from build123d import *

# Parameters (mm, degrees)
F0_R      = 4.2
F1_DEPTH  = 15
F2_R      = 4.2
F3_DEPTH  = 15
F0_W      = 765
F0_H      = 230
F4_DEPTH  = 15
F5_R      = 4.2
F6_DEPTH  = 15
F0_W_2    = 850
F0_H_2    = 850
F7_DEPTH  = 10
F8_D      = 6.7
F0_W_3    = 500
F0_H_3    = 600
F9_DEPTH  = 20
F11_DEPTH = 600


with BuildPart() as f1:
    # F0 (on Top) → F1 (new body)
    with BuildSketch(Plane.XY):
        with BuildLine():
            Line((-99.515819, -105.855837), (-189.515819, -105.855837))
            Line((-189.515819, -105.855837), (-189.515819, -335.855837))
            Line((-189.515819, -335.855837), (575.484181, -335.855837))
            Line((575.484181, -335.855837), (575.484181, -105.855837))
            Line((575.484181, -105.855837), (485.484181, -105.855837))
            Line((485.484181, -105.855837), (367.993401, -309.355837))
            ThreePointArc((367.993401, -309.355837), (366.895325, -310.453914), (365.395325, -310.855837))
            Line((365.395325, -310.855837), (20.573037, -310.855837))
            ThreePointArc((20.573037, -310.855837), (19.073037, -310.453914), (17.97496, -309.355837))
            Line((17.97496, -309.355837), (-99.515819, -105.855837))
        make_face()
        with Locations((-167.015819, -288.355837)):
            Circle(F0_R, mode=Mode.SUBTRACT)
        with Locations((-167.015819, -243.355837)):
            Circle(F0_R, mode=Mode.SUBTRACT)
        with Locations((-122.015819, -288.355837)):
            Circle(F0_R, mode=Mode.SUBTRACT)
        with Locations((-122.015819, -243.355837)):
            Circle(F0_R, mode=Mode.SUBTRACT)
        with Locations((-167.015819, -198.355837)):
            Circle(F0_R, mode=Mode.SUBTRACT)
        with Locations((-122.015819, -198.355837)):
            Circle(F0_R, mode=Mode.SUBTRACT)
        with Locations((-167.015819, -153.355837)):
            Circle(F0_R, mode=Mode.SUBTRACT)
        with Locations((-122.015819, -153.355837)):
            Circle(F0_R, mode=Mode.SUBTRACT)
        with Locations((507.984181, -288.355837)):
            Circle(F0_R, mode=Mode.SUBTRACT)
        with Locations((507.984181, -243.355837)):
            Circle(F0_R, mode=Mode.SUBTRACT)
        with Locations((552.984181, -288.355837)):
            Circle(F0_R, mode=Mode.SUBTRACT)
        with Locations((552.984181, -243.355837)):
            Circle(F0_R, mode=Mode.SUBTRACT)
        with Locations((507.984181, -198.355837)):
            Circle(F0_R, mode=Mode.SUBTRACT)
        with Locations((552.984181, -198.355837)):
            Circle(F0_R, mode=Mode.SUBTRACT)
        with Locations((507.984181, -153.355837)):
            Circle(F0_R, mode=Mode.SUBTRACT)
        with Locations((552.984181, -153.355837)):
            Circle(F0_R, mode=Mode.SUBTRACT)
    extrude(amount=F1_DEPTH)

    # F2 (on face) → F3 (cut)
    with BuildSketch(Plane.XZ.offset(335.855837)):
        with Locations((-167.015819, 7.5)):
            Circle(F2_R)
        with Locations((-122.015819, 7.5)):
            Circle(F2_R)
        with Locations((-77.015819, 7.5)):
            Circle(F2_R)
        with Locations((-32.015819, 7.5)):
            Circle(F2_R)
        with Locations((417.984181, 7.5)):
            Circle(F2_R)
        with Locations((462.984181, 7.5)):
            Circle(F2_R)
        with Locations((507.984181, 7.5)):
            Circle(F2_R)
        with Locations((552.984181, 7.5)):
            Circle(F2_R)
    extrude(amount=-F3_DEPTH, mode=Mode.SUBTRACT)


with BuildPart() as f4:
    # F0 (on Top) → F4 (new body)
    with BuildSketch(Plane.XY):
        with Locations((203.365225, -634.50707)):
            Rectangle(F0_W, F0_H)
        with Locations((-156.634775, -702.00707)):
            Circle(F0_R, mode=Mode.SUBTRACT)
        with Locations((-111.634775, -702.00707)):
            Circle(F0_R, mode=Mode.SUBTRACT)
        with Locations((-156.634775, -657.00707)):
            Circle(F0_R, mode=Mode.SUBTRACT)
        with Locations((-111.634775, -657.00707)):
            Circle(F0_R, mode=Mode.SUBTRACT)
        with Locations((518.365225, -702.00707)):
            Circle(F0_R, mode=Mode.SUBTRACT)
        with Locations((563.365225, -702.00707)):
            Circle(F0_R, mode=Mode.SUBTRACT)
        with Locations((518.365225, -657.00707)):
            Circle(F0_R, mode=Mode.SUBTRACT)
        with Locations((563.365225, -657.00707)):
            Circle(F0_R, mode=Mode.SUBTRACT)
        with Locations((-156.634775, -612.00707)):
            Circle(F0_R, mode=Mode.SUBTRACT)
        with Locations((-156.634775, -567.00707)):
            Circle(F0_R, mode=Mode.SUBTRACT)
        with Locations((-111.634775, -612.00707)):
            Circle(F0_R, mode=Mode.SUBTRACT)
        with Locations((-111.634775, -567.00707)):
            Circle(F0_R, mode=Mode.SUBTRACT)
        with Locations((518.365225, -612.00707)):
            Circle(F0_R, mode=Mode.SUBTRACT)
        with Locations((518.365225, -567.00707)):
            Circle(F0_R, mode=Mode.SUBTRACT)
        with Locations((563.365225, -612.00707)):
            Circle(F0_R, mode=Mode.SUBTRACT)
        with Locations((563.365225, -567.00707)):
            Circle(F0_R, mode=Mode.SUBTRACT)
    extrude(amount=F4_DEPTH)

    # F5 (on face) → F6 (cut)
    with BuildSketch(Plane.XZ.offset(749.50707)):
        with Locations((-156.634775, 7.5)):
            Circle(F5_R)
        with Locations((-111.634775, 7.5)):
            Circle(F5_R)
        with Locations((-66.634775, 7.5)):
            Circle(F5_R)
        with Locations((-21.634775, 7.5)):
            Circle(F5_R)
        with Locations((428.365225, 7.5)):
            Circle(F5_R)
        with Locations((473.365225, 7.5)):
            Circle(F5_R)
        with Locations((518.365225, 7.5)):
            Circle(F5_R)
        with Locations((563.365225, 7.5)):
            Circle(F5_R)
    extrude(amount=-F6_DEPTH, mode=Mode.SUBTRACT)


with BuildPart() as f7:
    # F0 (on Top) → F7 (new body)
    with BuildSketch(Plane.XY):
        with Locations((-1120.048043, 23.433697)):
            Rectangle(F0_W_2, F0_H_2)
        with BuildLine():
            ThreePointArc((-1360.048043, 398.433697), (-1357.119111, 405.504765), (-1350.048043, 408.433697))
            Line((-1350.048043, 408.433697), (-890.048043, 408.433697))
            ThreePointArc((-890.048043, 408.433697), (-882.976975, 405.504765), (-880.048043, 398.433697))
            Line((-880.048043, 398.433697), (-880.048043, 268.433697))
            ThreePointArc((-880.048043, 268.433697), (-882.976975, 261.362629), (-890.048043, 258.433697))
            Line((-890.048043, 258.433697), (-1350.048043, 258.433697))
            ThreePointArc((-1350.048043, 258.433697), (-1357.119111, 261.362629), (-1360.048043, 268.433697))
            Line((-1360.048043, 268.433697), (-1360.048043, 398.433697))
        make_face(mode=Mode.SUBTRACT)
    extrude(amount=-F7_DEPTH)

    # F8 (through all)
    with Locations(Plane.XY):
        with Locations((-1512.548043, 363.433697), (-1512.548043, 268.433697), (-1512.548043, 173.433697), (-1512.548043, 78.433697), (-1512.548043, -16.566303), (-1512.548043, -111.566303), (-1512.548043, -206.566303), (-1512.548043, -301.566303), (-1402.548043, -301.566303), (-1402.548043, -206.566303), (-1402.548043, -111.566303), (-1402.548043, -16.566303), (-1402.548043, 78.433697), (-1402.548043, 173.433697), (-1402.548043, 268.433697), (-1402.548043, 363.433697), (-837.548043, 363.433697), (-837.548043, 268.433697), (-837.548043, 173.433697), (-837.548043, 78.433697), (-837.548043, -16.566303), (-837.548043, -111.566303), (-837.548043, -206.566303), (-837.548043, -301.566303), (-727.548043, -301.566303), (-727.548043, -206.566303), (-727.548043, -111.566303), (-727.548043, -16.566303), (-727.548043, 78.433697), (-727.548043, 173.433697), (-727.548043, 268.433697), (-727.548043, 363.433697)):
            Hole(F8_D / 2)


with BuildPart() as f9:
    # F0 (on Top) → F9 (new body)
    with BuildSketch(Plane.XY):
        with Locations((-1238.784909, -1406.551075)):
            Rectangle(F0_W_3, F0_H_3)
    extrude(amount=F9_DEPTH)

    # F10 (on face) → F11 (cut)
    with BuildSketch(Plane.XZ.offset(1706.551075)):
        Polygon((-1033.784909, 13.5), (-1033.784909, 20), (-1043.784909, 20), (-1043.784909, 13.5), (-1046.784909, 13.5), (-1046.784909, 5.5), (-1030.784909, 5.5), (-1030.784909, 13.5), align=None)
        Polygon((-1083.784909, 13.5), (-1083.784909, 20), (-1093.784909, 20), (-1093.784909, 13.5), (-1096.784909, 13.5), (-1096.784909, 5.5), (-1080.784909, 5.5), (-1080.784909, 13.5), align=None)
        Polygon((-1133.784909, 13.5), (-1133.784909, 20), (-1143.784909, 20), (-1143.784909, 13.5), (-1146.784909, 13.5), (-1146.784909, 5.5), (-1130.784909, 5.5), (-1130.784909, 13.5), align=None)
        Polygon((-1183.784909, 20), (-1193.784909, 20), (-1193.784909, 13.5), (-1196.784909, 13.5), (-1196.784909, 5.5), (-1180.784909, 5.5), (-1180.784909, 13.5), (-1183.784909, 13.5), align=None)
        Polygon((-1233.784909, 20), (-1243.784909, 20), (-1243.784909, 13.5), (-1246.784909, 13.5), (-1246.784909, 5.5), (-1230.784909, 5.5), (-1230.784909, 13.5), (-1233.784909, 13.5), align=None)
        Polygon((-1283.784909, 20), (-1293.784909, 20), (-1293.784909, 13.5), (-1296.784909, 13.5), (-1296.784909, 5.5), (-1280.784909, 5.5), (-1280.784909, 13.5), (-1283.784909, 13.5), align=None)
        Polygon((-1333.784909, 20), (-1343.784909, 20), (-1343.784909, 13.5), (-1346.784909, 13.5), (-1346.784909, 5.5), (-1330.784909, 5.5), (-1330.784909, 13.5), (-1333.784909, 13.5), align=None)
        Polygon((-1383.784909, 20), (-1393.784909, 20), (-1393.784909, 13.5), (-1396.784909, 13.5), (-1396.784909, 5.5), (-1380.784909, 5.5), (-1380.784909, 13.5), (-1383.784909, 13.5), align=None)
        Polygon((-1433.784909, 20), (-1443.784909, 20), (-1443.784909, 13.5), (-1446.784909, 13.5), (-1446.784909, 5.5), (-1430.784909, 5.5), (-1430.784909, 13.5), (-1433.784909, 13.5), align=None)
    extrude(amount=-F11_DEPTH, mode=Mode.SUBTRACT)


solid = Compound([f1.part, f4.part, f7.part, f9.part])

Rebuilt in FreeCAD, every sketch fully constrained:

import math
import FreeCAD as App
import Part
import Sketcher

V = App.Vector
Q = App.Units.Quantity

doc = App.newDocument("Part")
body = doc.addObject("PartDesign::Body", "Body")

# Sketch on XY plane
sketch1 = doc.addObject("Sketcher::SketchObject", "Sketch")
body.addObject(sketch1)
sketch1.AttachmentSupport = (doc.XY_Plane, [""])
sketch1.MapMode = "FlatFace"
sketch1.addGeometry([
    Part.LineSegment(V(-99.5, -105.9, 0), V(-189.5, -105.9, 0)),  # 0
    Part.LineSegment(V(-189.5, -105.9, 0), V(-189.5, -335.9, 0)),  # 1
    Part.LineSegment(V(-189.5, -335.9, 0), V(575.5, -335.9, 0)),  # 2
    Part.LineSegment(V(575.5, -335.9, 0), V(575.5, -105.9, 0)),  # 3
    Part.LineSegment(V(575.5, -105.9, 0), V(485.5, -105.9, 0)),  # 4
    Part.LineSegment(V(485.5, -105.9, 0), V(368, -309.4, 0)),  # 5
    Part.ArcOfCircle(Part.Circle(V(365.4, -307.9, 0), V(0, 0, 1), 3), math.radians(-90), math.radians(-30)),  # 6
    Part.LineSegment(V(365.4, -310.9, 0), V(20.6, -310.9, 0)),  # 7
    Part.ArcOfCircle(Part.Circle(V(20.6, -307.9, 0), V(0, 0, 1), 3), math.radians(-150), math.radians(-90)),  # 8
    Part.LineSegment(V(18, -309.4, 0), V(-99.5, -105.9, 0)),  # 9
    Part.Circle(V(-167, -288.4, 0), V(0, 0, 1), 4.2),  # 10
    Part.Circle(V(-122, -288.4, 0), V(0, 0, 1), 4.2),  # 11
    Part.Circle(V(-167, -243.4, 0), V(0, 0, 1), 4.2),  # 12
    Part.Circle(V(-122, -243.4, 0), V(0, 0, 1), 4.2),  # 13
    Part.Circle(V(508, -288.4, 0), V(0, 0, 1), 4.2),  # 14
    Part.Circle(V(553, -288.4, 0), V(0, 0, 1), 4.2),  # 15
    Part.Circle(V(508, -243.4, 0), V(0, 0, 1), 4.2),  # 16
    Part.Circle(V(553, -243.4, 0), V(0, 0, 1), 4.2),  # 17
    Part.Circle(V(-167, -198.4, 0), V(0, 0, 1), 4.2),  # 18
    Part.Circle(V(-122, -198.4, 0), V(0, 0, 1), 4.2),  # 19
    Part.Circle(V(-167, -153.4, 0), V(0, 0, 1), 4.2),  # 20
    Part.Circle(V(-122, -153.4, 0), V(0, 0, 1), 4.2),  # 21
    Part.Circle(V(508, -198.4, 0), V(0, 0, 1), 4.2),  # 22
    Part.Circle(V(553, -198.4, 0), V(0, 0, 1), 4.2),  # 23
    Part.Circle(V(508, -153.4, 0), V(0, 0, 1), 4.2),  # 24
    Part.Circle(V(553, -153.4, 0), V(0, 0, 1), 4.2),  # 25
], False)
sketch1.addConstraint([
    Sketcher.Constraint("Coincident", 0, 2, 1, 1),
    Sketcher.Constraint("Coincident", 1, 2, 2, 1),
    Sketcher.Constraint("Coincident", 2, 2, 3, 1),
    Sketcher.Constraint("Coincident", 3, 2, 4, 1),
    Sketcher.Constraint("Coincident", 4, 2, 5, 1),
    Sketcher.Constraint("Tangent", 5, 2, 6, 2),
    Sketcher.Constraint("Tangent", 6, 1, 7, 1),
    Sketcher.Constraint("Tangent", 7, 2, 8, 2),
    Sketcher.Constraint("Tangent", 8, 1, 9, 1),
    Sketcher.Constraint("Coincident", 9, 2, 0, 1),
    Sketcher.Constraint("Horizontal", 0),
    Sketcher.Constraint("Vertical", 1),
    Sketcher.Constraint("Horizontal", 2),
    Sketcher.Constraint("Vertical", 3),
    Sketcher.Constraint("Horizontal", 4),
    Sketcher.Constraint("Horizontal", 7),
    Sketcher.Constraint("Equal", 10, 11),
    Sketcher.Constraint("Equal", 11, 12),
    Sketcher.Constraint("Equal", 12, 13),
    Sketcher.Constraint("Equal", 13, 14),
    Sketcher.Constraint("Equal", 14, 15),
    Sketcher.Constraint("Equal", 15, 16),
    Sketcher.Constraint("Equal", 16, 17),
    Sketcher.Constraint("Equal", 17, 18),
    Sketcher.Constraint("Equal", 18, 19),
    Sketcher.Constraint("Equal", 19, 20),
    Sketcher.Constraint("Equal", 20, 21),
    Sketcher.Constraint("Equal", 21, 22),
    Sketcher.Constraint("Equal", 22, 23),
    Sketcher.Constraint("Equal", 23, 24),
    Sketcher.Constraint("Equal", 24, 25),
    Sketcher.Constraint("Horizontal", 10, 3, 11, 3),
    Sketcher.Constraint("Horizontal", 12, 3, 13, 3),
    Sketcher.Constraint("Horizontal", 11, 3, 14, 3),
    Sketcher.Constraint("Horizontal", 14, 3, 15, 3),
    Sketcher.Constraint("Horizontal", 13, 3, 16, 3),
    Sketcher.Constraint("Horizontal", 16, 3, 17, 3),
    Sketcher.Constraint("Horizontal", 18, 3, 19, 3),
    Sketcher.Constraint("Horizontal", 20, 3, 21, 3),
    Sketcher.Constraint("Horizontal", 19, 3, 22, 3),
    Sketcher.Constraint("Horizontal", 22, 3, 23, 3),
    Sketcher.Constraint("Horizontal", 21, 3, 24, 3),
    Sketcher.Constraint("Horizontal", 24, 3, 25, 3),
    Sketcher.Constraint("Horizontal", 0, 2, 3, 2),
    Sketcher.Constraint("Horizontal", 5, 2, 8, 1),
    Sketcher.Constraint("Vertical", 10, 3, 12, 3),
    Sketcher.Constraint("Vertical", 11, 3, 13, 3),
    Sketcher.Constraint("Vertical", 14, 3, 16, 3),
    Sketcher.Constraint("Vertical", 15, 3, 17, 3),
    Sketcher.Constraint("Vertical", 12, 3, 18, 3),
    Sketcher.Constraint("Vertical", 13, 3, 19, 3),
    Sketcher.Constraint("Vertical", 18, 3, 20, 3),
    Sketcher.Constraint("Vertical", 19, 3, 21, 3),
    Sketcher.Constraint("Vertical", 16, 3, 22, 3),
    Sketcher.Constraint("Vertical", 17, 3, 23, 3),
    Sketcher.Constraint("Vertical", 22, 3, 24, 3),
    Sketcher.Constraint("Vertical", 23, 3, 25, 3),
    Sketcher.Constraint("Equal", 0, 4),
    Sketcher.Constraint("Equal", 5, 9),
    Sketcher.Constraint("Radius", 8, 2.999998),
    Sketcher.Constraint("Diameter", 10, 8.4),
    Sketcher.Constraint("DistanceX", 0, 2, 0, 1, 90.0),
    Sketcher.Constraint("DistanceX", 2, 1, 2, 2, 765.0),
    Sketcher.Constraint("DistanceY", 1, 2, 1, 1, 230.0),
    Sketcher.Constraint("Angle", 5, Q("-120 deg")),
    Sketcher.Constraint("DistanceX", 10, 3, 11, 3, 45.0),
    Sketcher.Constraint("DistanceY", 10, 3, 12, 3, 45.0),
    Sketcher.Constraint("DistanceX", 11, 3, 14, 3, 630.0),
    Sketcher.Constraint("DistanceX", 14, 3, 15, 3, 45.0),
    Sketcher.Constraint("DistanceY", 12, 3, 18, 3, 45.0),
    Sketcher.Constraint("DistanceY", 18, 3, 20, 3, 45.0),
    Sketcher.Constraint("DistanceY", 5, 2, 14, 3, 21.0),
    Sketcher.Constraint("DistanceX", 0, 2, 20, 3, 22.5),
    Sketcher.Constraint("DistanceY", 20, 3, 0, 2, 47.5),
    Sketcher.Constraint("DistanceX", -1, 1, 5, 2, 367.993401),
    Sketcher.Constraint("DistanceY", 8, 3, -1, 1, 307.855839),
])
pad1 = doc.addObject("PartDesign::Pad", "Pad")
body.addObject(pad1)
pad1.Profile = sketch1
pad1.Length = 15

# Sketch on XZ plane
sketch2 = doc.addObject("Sketcher::SketchObject", "Sketch001")
body.addObject(sketch2)
sketch2.AttachmentSupport = (doc.XZ_Plane, [""])
sketch2.MapMode = "FlatFace"
sketch2.AttachmentOffset = App.Placement(V(0, 0, 335.855837), App.Rotation())
sketch2.addGeometry([
    Part.Circle(V(-167, 7.5, 0), V(0, 0, 1), 4.2),  # 0
    Part.Circle(V(-122, 7.5, 0), V(0, 0, 1), 4.2),  # 1
    Part.Circle(V(-77, 7.5, 0), V(0, 0, 1), 4.2),  # 2
    Part.Circle(V(-32, 7.5, 0), V(0, 0, 1), 4.2),  # 3
    Part.Circle(V(418, 7.5, 0), V(0, 0, 1), 4.2),  # 4
    Part.Circle(V(463, 7.5, 0), V(0, 0, 1), 4.2),  # 5
    Part.Circle(V(508, 7.5, 0), V(0, 0, 1), 4.2),  # 6
    Part.Circle(V(553, 7.5, 0), V(0, 0, 1), 4.2),  # 7
], False)
sketch2.addConstraint([
    Sketcher.Constraint("Equal", 0, 1),
    Sketcher.Constraint("Equal", 1, 2),
    Sketcher.Constraint("Equal", 2, 3),
    Sketcher.Constraint("Equal", 3, 4),
    Sketcher.Constraint("Equal", 4, 5),
    Sketcher.Constraint("Equal", 5, 6),
    Sketcher.Constraint("Equal", 6, 7),
    Sketcher.Constraint("Horizontal", 0, 3, 1, 3),
    Sketcher.Constraint("Horizontal", 1, 3, 2, 3),
    Sketcher.Constraint("Horizontal", 2, 3, 3, 3),
    Sketcher.Constraint("Horizontal", 3, 3, 4, 3),
    Sketcher.Constraint("Horizontal", 4, 3, 5, 3),
    Sketcher.Constraint("Horizontal", 5, 3, 6, 3),
    Sketcher.Constraint("Horizontal", 6, 3, 7, 3),
    Sketcher.Constraint("Diameter", 0, 8.4),
    Sketcher.Constraint("DistanceX", 0, 3, 1, 3, 45.0),
    Sketcher.Constraint("DistanceX", 1, 3, 2, 3, 45.0),
    Sketcher.Constraint("DistanceX", 2, 3, 3, 3, 45.0),
    Sketcher.Constraint("DistanceX", 3, 3, 4, 3, 450.0),
    Sketcher.Constraint("DistanceX", 4, 3, 5, 3, 45.0),
    Sketcher.Constraint("DistanceX", 5, 3, 6, 3, 45.0),
    Sketcher.Constraint("DistanceX", 6, 3, 7, 3, 45.0),
    Sketcher.Constraint("DistanceY", -1, 1, 0, 3, 7.5),
    Sketcher.Constraint("DistanceX", 0, 3, -1, 1, 167.015819),
])
pocket1 = doc.addObject("PartDesign::Pocket", "Pocket")
body.addObject(pocket1)
pocket1.Profile = sketch2
pocket1.Length = 15
body2 = doc.addObject("PartDesign::Body", "Body001")

# Sketch on XY plane
sketch3 = doc.addObject("Sketcher::SketchObject", "Sketch002")
body2.addObject(sketch3)
sketch3.AttachmentSupport = (doc.getObject("XY_Plane001"), [""])
sketch3.MapMode = "FlatFace"
sketch3.addGeometry([
    Part.LineSegment(V(-179.1, -519.5, 0), V(-179.1, -749.5, 0)),  # 0
    Part.LineSegment(V(-179.1, -749.5, 0), V(585.9, -749.5, 0)),  # 1
    Part.LineSegment(V(585.9, -749.5, 0), V(585.9, -519.5, 0)),  # 2
    Part.LineSegment(V(585.9, -519.5, 0), V(-179.1, -519.5, 0)),  # 3
    Part.Circle(V(-156.6, -702, 0), V(0, 0, 1), 4.2),  # 4
    Part.Circle(V(-111.6, -702, 0), V(0, 0, 1), 4.2),  # 5
    Part.Circle(V(-156.6, -657, 0), V(0, 0, 1), 4.2),  # 6
    Part.Circle(V(-111.6, -657, 0), V(0, 0, 1), 4.2),  # 7
    Part.Circle(V(518.4, -702, 0), V(0, 0, 1), 4.2),  # 8
    Part.Circle(V(563.4, -702, 0), V(0, 0, 1), 4.2),  # 9
    Part.Circle(V(518.4, -657, 0), V(0, 0, 1), 4.2),  # 10
    Part.Circle(V(563.4, -657, 0), V(0, 0, 1), 4.2),  # 11
    Part.Circle(V(-156.6, -612, 0), V(0, 0, 1), 4.2),  # 12
    Part.Circle(V(-111.6, -612, 0), V(0, 0, 1), 4.2),  # 13
    Part.Circle(V(-156.6, -567, 0), V(0, 0, 1), 4.2),  # 14
    Part.Circle(V(-111.6, -567, 0), V(0, 0, 1), 4.2),  # 15
    Part.Circle(V(518.4, -612, 0), V(0, 0, 1), 4.2),  # 16
    Part.Circle(V(563.4, -612, 0), V(0, 0, 1), 4.2),  # 17
    Part.Circle(V(518.4, -567, 0), V(0, 0, 1), 4.2),  # 18
    Part.Circle(V(563.4, -567, 0), V(0, 0, 1), 4.2),  # 19
], False)
sketch3.addConstraint([
    Sketcher.Constraint("Coincident", 0, 2, 1, 1),
    Sketcher.Constraint("Coincident", 1, 2, 2, 1),
    Sketcher.Constraint("Coincident", 2, 2, 3, 1),
    Sketcher.Constraint("Coincident", 3, 2, 0, 1),
    Sketcher.Constraint("Vertical", 0),
    Sketcher.Constraint("Horizontal", 1),
    Sketcher.Constraint("Vertical", 2),
    Sketcher.Constraint("Horizontal", 3),
    Sketcher.Constraint("Equal", 4, 5),
    Sketcher.Constraint("Equal", 5, 6),
    Sketcher.Constraint("Equal", 6, 7),
    Sketcher.Constraint("Equal", 7, 8),
    Sketcher.Constraint("Equal", 8, 9),
    Sketcher.Constraint("Equal", 9, 10),
    Sketcher.Constraint("Equal", 10, 11),
    Sketcher.Constraint("Equal", 11, 12),
    Sketcher.Constraint("Equal", 12, 13),
    Sketcher.Constraint("Equal", 13, 14),
    Sketcher.Constraint("Equal", 14, 15),
    Sketcher.Constraint("Equal", 15, 16),
    Sketcher.Constraint("Equal", 16, 17),
    Sketcher.Constraint("Equal", 17, 18),
    Sketcher.Constraint("Equal", 18, 19),
    Sketcher.Constraint("Horizontal", 4, 3, 5, 3),
    Sketcher.Constraint("Horizontal", 6, 3, 7, 3),
    Sketcher.Constraint("Horizontal", 5, 3, 8, 3),
    Sketcher.Constraint("Horizontal", 8, 3, 9, 3),
    Sketcher.Constraint("Horizontal", 7, 3, 10, 3),
    Sketcher.Constraint("Horizontal", 10, 3, 11, 3),
    Sketcher.Constraint("Horizontal", 12, 3, 13, 3),
    Sketcher.Constraint("Horizontal", 14, 3, 15, 3),
    Sketcher.Constraint("Horizontal", 13, 3, 16, 3),
    Sketcher.Constraint("Horizontal", 16, 3, 17, 3),
    Sketcher.Constraint("Horizontal", 15, 3, 18, 3),
    Sketcher.Constraint("Horizontal", 18, 3, 19, 3),
    Sketcher.Constraint("Vertical", 4, 3, 6, 3),
    Sketcher.Constraint("Vertical", 5, 3, 7, 3),
    Sketcher.Constraint("Vertical", 8, 3, 10, 3),
    Sketcher.Constraint("Vertical", 9, 3, 11, 3),
    Sketcher.Constraint("Vertical", 6, 3, 12, 3),
    Sketcher.Constraint("Vertical", 7, 3, 13, 3),
    Sketcher.Constraint("Vertical", 12, 3, 14, 3),
    Sketcher.Constraint("Vertical", 13, 3, 15, 3),
    Sketcher.Constraint("Vertical", 10, 3, 16, 3),
    Sketcher.Constraint("Vertical", 11, 3, 17, 3),
    Sketcher.Constraint("Vertical", 16, 3, 18, 3),
    Sketcher.Constraint("Vertical", 17, 3, 19, 3),
    Sketcher.Constraint("Diameter", 4, 8.4),
    Sketcher.Constraint("DistanceX", 1, 1, 1, 2, 765.0),
    Sketcher.Constraint("DistanceY", 0, 2, 0, 1, 230.0),
    Sketcher.Constraint("DistanceX", 4, 3, 5, 3, 45.0),
    Sketcher.Constraint("DistanceY", 4, 3, 6, 3, 45.0),
    Sketcher.Constraint("DistanceX", 5, 3, 8, 3, 630.0),
    Sketcher.Constraint("DistanceX", 8, 3, 9, 3, 45.0),
    Sketcher.Constraint("DistanceY", 6, 3, 12, 3, 45.0),
    Sketcher.Constraint("DistanceY", 12, 3, 14, 3, 45.0),
    Sketcher.Constraint("DistanceX", 0, 2, 4, 3, 22.5),
    Sketcher.Constraint("DistanceY", 0, 2, 4, 3, 47.5),
    Sketcher.Constraint("DistanceY", 4, 3, -1, 1, 702.00707),
    Sketcher.Constraint("DistanceX", 4, 3, -1, 1, 156.634775),
])
pad2 = doc.addObject("PartDesign::Pad", "Pad001")
body2.addObject(pad2)
pad2.Profile = sketch3
pad2.Length = 15

# Sketch on XZ plane
sketch4 = doc.addObject("Sketcher::SketchObject", "Sketch003")
body2.addObject(sketch4)
sketch4.AttachmentSupport = (doc.getObject("XZ_Plane001"), [""])
sketch4.MapMode = "FlatFace"
sketch4.AttachmentOffset = App.Placement(V(0, 0, 749.50707), App.Rotation())
sketch4.addGeometry([
    Part.Circle(V(-156.6, 7.5, 0), V(0, 0, 1), 4.2),  # 0
    Part.Circle(V(-111.6, 7.5, 0), V(0, 0, 1), 4.2),  # 1
    Part.Circle(V(-66.6, 7.5, 0), V(0, 0, 1), 4.2),  # 2
    Part.Circle(V(-21.6, 7.5, 0), V(0, 0, 1), 4.2),  # 3
    Part.Circle(V(428.4, 7.5, 0), V(0, 0, 1), 4.2),  # 4
    Part.Circle(V(473.4, 7.5, 0), V(0, 0, 1), 4.2),  # 5
    Part.Circle(V(518.4, 7.5, 0), V(0, 0, 1), 4.2),  # 6
    Part.Circle(V(563.4, 7.5, 0), V(0, 0, 1), 4.2),  # 7
], False)
sketch4.addConstraint([
    Sketcher.Constraint("Equal", 0, 1),
    Sketcher.Constraint("Equal", 1, 2),
    Sketcher.Constraint("Equal", 2, 3),
    Sketcher.Constraint("Equal", 3, 4),
    Sketcher.Constraint("Equal", 4, 5),
    Sketcher.Constraint("Equal", 5, 6),
    Sketcher.Constraint("Equal", 6, 7),
    Sketcher.Constraint("Horizontal", 0, 3, 1, 3),
    Sketcher.Constraint("Horizontal", 1, 3, 2, 3),
    Sketcher.Constraint("Horizontal", 2, 3, 3, 3),
    Sketcher.Constraint("Horizontal", 3, 3, 4, 3),
    Sketcher.Constraint("Horizontal", 4, 3, 5, 3),
    Sketcher.Constraint("Horizontal", 5, 3, 6, 3),
    Sketcher.Constraint("Horizontal", 6, 3, 7, 3),
    Sketcher.Constraint("Diameter", 0, 8.4),
    Sketcher.Constraint("DistanceX", 0, 3, 1, 3, 45.0),
    Sketcher.Constraint("DistanceX", 1, 3, 2, 3, 45.0),
    Sketcher.Constraint("DistanceX", 2, 3, 3, 3, 45.0),
    Sketcher.Constraint("DistanceX", 3, 3, 4, 3, 450.0),
    Sketcher.Constraint("DistanceX", 4, 3, 5, 3, 45.0),
    Sketcher.Constraint("DistanceX", 5, 3, 6, 3, 45.0),
    Sketcher.Constraint("DistanceX", 6, 3, 7, 3, 45.0),
    Sketcher.Constraint("DistanceY", -1, 1, 0, 3, 7.5),
    Sketcher.Constraint("DistanceX", 0, 3, -1, 1, 156.634775),
])
pocket2 = doc.addObject("PartDesign::Pocket", "Pocket001")
body2.addObject(pocket2)
pocket2.Profile = sketch4
pocket2.Length = 15
body3 = doc.addObject("PartDesign::Body", "Body002")

# Sketch on XY plane
sketch5 = doc.addObject("Sketcher::SketchObject", "Sketch004")
body3.addObject(sketch5)
sketch5.AttachmentSupport = (doc.getObject("XY_Plane002"), [""])
sketch5.MapMode = "FlatFace"
sketch5.addGeometry([
    Part.LineSegment(V(-1545, 448, 0), V(-1545, -402, 0)),  # 0
    Part.LineSegment(V(-1545, -402, 0), V(-695, -402, 0)),  # 1
    Part.LineSegment(V(-695, -402, 0), V(-695, 448, 0)),  # 2
    Part.LineSegment(V(-695, 448, 0), V(-1545, 448, 0)),  # 3
    Part.LineSegment(V(-1360, 268, 0), V(-1360, 398, 0)),  # 4
    Part.ArcOfCircle(Part.Circle(V(-1350, 398, 0), V(0, 0, 1), 10), math.radians(90), math.radians(180)),  # 5
    Part.LineSegment(V(-1350, 408, 0), V(-890, 408, 0)),  # 6
    Part.ArcOfCircle(Part.Circle(V(-890, 398, 0), V(0, 0, 1), 10), math.radians(0), math.radians(90)),  # 7
    Part.LineSegment(V(-880, 398, 0), V(-880, 268, 0)),  # 8
    Part.ArcOfCircle(Part.Circle(V(-890, 268, 0), V(0, 0, 1), 10), math.radians(-90), math.radians(0)),  # 9
    Part.LineSegment(V(-890, 258, 0), V(-1350, 258, 0)),  # 10
    Part.ArcOfCircle(Part.Circle(V(-1350, 268, 0), V(0, 0, 1), 10), math.radians(180), math.radians(270)),  # 11
], False)
sketch5.addConstraint([
    Sketcher.Constraint("Coincident", 0, 2, 1, 1),
    Sketcher.Constraint("Coincident", 1, 2, 2, 1),
    Sketcher.Constraint("Coincident", 2, 2, 3, 1),
    Sketcher.Constraint("Coincident", 3, 2, 0, 1),
    Sketcher.Constraint("Tangent", 4, 2, 5, 2),
    Sketcher.Constraint("Tangent", 5, 1, 6, 1),
    Sketcher.Constraint("Tangent", 6, 2, 7, 2),
    Sketcher.Constraint("Tangent", 7, 1, 8, 1),
    Sketcher.Constraint("Tangent", 8, 2, 9, 2),
    Sketcher.Constraint("Tangent", 9, 1, 10, 1),
    Sketcher.Constraint("Tangent", 10, 2, 11, 2),
    Sketcher.Constraint("Tangent", 11, 1, 4, 1),
    Sketcher.Constraint("Vertical", 0),
    Sketcher.Constraint("Horizontal", 1),
    Sketcher.Constraint("Vertical", 2),
    Sketcher.Constraint("Horizontal", 3),
    Sketcher.Constraint("Vertical", 4),
    Sketcher.Constraint("Horizontal", 6),
    Sketcher.Constraint("Vertical", 8),
    Sketcher.Constraint("Horizontal", 10),
    Sketcher.Constraint("Equal", 5, 7),
    Sketcher.Constraint("Equal", 7, 9),
    Sketcher.Constraint("Equal", 9, 11),
    Sketcher.Constraint("Equal", 3, 0),
    Sketcher.Constraint("Radius", 5, 9.999999),
    Sketcher.Constraint("DistanceX", 1, 1, 1, 2, 850.0),
    Sketcher.Constraint("DistanceX", 6, 1, 6, 2, 460.0),
    Sketcher.Constraint("DistanceY", 4, 1, 4, 2, 130.0),
    Sketcher.Constraint("DistanceX", 0, 2, 11, 3, 194.999999),
    Sketcher.Constraint("DistanceY", 0, 2, 11, 3, 669.999999),
    Sketcher.Constraint("DistanceX", 5, 3, -1, 1, 1350.048044),
    Sketcher.Constraint("DistanceY", -1, 1, 5, 3, 398.433698),
])
pad3 = doc.addObject("PartDesign::Pad", "Pad002")
body3.addObject(pad3)
pad3.Profile = sketch5
pad3.Length = 10
pad3.Reversed = True

# Sketch on XY plane
sketch6 = doc.addObject("Sketcher::SketchObject", "Sketch005")
body3.addObject(sketch6)
sketch6.AttachmentSupport = (doc.getObject("XY_Plane002"), [""])
sketch6.MapMode = "FlatFace"
sketch6.addGeometry([
    Part.Circle(V(-1512.5, 363.4, 0), V(0, 0, 1), 3.4),  # 0
    Part.Circle(V(-1512.5, 268.4, 0), V(0, 0, 1), 3.4),  # 1
    Part.Circle(V(-1512.5, 173.4, 0), V(0, 0, 1), 3.4),  # 2
    Part.Circle(V(-1512.5, 78.4, 0), V(0, 0, 1), 3.4),  # 3
    Part.Circle(V(-1512.5, -16.6, 0), V(0, 0, 1), 3.4),  # 4
    Part.Circle(V(-1512.5, -111.6, 0), V(0, 0, 1), 3.4),  # 5
    Part.Circle(V(-1512.5, -206.6, 0), V(0, 0, 1), 3.4),  # 6
    Part.Circle(V(-1512.5, -301.6, 0), V(0, 0, 1), 3.4),  # 7
    Part.Circle(V(-1402.5, -301.6, 0), V(0, 0, 1), 3.4),  # 8
    Part.Circle(V(-1402.5, -206.6, 0), V(0, 0, 1), 3.4),  # 9
    Part.Circle(V(-1402.5, -111.6, 0), V(0, 0, 1), 3.4),  # 10
    Part.Circle(V(-1402.5, -16.6, 0), V(0, 0, 1), 3.4),  # 11
    Part.Circle(V(-1402.5, 78.4, 0), V(0, 0, 1), 3.4),  # 12
    Part.Circle(V(-1402.5, 173.4, 0), V(0, 0, 1), 3.4),  # 13
    Part.Circle(V(-1402.5, 268.4, 0), V(0, 0, 1), 3.4),  # 14
    Part.Circle(V(-1402.5, 363.4, 0), V(0, 0, 1), 3.4),  # 15
    Part.Circle(V(-837.5, 363.4, 0), V(0, 0, 1), 3.4),  # 16
    Part.Circle(V(-837.5, 268.4, 0), V(0, 0, 1), 3.4),  # 17
    Part.Circle(V(-837.5, 173.4, 0), V(0, 0, 1), 3.4),  # 18
    Part.Circle(V(-837.5, 78.4, 0), V(0, 0, 1), 3.4),  # 19
    Part.Circle(V(-837.5, -16.6, 0), V(0, 0, 1), 3.4),  # 20
    Part.Circle(V(-837.5, -111.6, 0), V(0, 0, 1), 3.4),  # 21
    Part.Circle(V(-837.5, -206.6, 0), V(0, 0, 1), 3.4),  # 22
    Part.Circle(V(-837.5, -301.6, 0), V(0, 0, 1), 3.4),  # 23
    Part.Circle(V(-727.5, -301.6, 0), V(0, 0, 1), 3.4),  # 24
    Part.Circle(V(-727.5, -206.6, 0), V(0, 0, 1), 3.4),  # 25
    Part.Circle(V(-727.5, -111.6, 0), V(0, 0, 1), 3.4),  # 26
    Part.Circle(V(-727.5, -16.6, 0), V(0, 0, 1), 3.4),  # 27
    Part.Circle(V(-727.5, 78.4, 0), V(0, 0, 1), 3.4),  # 28
    Part.Circle(V(-727.5, 173.4, 0), V(0, 0, 1), 3.4),  # 29
    Part.Circle(V(-727.5, 268.4, 0), V(0, 0, 1), 3.4),  # 30
    Part.Circle(V(-727.5, 363.4, 0), V(0, 0, 1), 3.4),  # 31
], False)
sketch6.addConstraint([
    Sketcher.Constraint("Equal", 0, 1),
    Sketcher.Constraint("Equal", 1, 2),
    Sketcher.Constraint("Equal", 2, 3),
    Sketcher.Constraint("Equal", 3, 4),
    Sketcher.Constraint("Equal", 4, 5),
    Sketcher.Constraint("Equal", 5, 6),
    Sketcher.Constraint("Equal", 6, 7),
    Sketcher.Constraint("Equal", 7, 8),
    Sketcher.Constraint("Equal", 8, 9),
    Sketcher.Constraint("Equal", 9, 10),
    Sketcher.Constraint("Equal", 10, 11),
    Sketcher.Constraint("Equal", 11, 12),
    Sketcher.Constraint("Equal", 12, 13),
    Sketcher.Constraint("Equal", 13, 14),
    Sketcher.Constraint("Equal", 14, 15),
    Sketcher.Constraint("Equal", 15, 16),
    Sketcher.Constraint("Equal", 16, 17),
    Sketcher.Constraint("Equal", 17, 18),
    Sketcher.Constraint("Equal", 18, 19),
    Sketcher.Constraint("Equal", 19, 20),
    Sketcher.Constraint("Equal", 20, 21),
    Sketcher.Constraint("Equal", 21, 22),
    Sketcher.Constraint("Equal", 22, 23),
    Sketcher.Constraint("Equal", 23, 24),
    Sketcher.Constraint("Equal", 24, 25),
    Sketcher.Constraint("Equal", 25, 26),
    Sketcher.Constraint("Equal", 26, 27),
    Sketcher.Constraint("Equal", 27, 28),
    Sketcher.Constraint("Equal", 28, 29),
    Sketcher.Constraint("Equal", 29, 30),
    Sketcher.Constraint("Equal", 30, 31),
    Sketcher.Constraint("Horizontal", 7, 3, 8, 3),
    Sketcher.Constraint("Horizontal", 6, 3, 9, 3),
    Sketcher.Constraint("Horizontal", 5, 3, 10, 3),
    Sketcher.Constraint("Horizontal", 4, 3, 11, 3),
    Sketcher.Constraint("Horizontal", 3, 3, 12, 3),
    Sketcher.Constraint("Horizontal", 2, 3, 13, 3),
    Sketcher.Constraint("Horizontal", 1, 3, 14, 3),
    Sketcher.Constraint("Horizontal", 0, 3, 15, 3),
    Sketcher.Constraint("Horizontal", 15, 3, 16, 3),
    Sketcher.Constraint("Horizontal", 14, 3, 17, 3),
    Sketcher.Constraint("Horizontal", 13, 3, 18, 3),
    Sketcher.Constraint("Horizontal", 12, 3, 19, 3),
    Sketcher.Constraint("Horizontal", 11, 3, 20, 3),
    Sketcher.Constraint("Horizontal", 10, 3, 21, 3),
    Sketcher.Constraint("Horizontal", 9, 3, 22, 3),
    Sketcher.Constraint("Horizontal", 8, 3, 23, 3),
    Sketcher.Constraint("Horizontal", 23, 3, 24, 3),
    Sketcher.Constraint("Horizontal", 22, 3, 25, 3),
    Sketcher.Constraint("Horizontal", 21, 3, 26, 3),
    Sketcher.Constraint("Horizontal", 20, 3, 27, 3),
    Sketcher.Constraint("Horizontal", 19, 3, 28, 3),
    Sketcher.Constraint("Horizontal", 18, 3, 29, 3),
    Sketcher.Constraint("Horizontal", 17, 3, 30, 3),
    Sketcher.Constraint("Horizontal", 16, 3, 31, 3),
    Sketcher.Constraint("Vertical", 0, 3, 1, 3),
    Sketcher.Constraint("Vertical", 1, 3, 2, 3),
    Sketcher.Constraint("Vertical", 2, 3, 3, 3),
    Sketcher.Constraint("Vertical", 3, 3, 4, 3),
    Sketcher.Constraint("Vertical", 4, 3, 5, 3),
    Sketcher.Constraint("Vertical", 5, 3, 6, 3),
    Sketcher.Constraint("Vertical", 6, 3, 7, 3),
    Sketcher.Constraint("Vertical", 8, 3, 9, 3),
    Sketcher.Constraint("Vertical", 9, 3, 10, 3),
    Sketcher.Constraint("Vertical", 10, 3, 11, 3),
    Sketcher.Constraint("Vertical", 11, 3, 12, 3),
    Sketcher.Constraint("Vertical", 12, 3, 13, 3),
    Sketcher.Constraint("Vertical", 13, 3, 14, 3),
    Sketcher.Constraint("Vertical", 14, 3, 15, 3),
    Sketcher.Constraint("Vertical", 16, 3, 17, 3),
    Sketcher.Constraint("Vertical", 17, 3, 18, 3),
    Sketcher.Constraint("Vertical", 18, 3, 19, 3),
    Sketcher.Constraint("Vertical", 19, 3, 20, 3),
    Sketcher.Constraint("Vertical", 20, 3, 21, 3),
    Sketcher.Constraint("Vertical", 21, 3, 22, 3),
    Sketcher.Constraint("Vertical", 22, 3, 23, 3),
    Sketcher.Constraint("Vertical", 24, 3, 25, 3),
    Sketcher.Constraint("Vertical", 25, 3, 26, 3),
    Sketcher.Constraint("Vertical", 26, 3, 27, 3),
    Sketcher.Constraint("Vertical", 27, 3, 28, 3),
    Sketcher.Constraint("Vertical", 28, 3, 29, 3),
    Sketcher.Constraint("Vertical", 29, 3, 30, 3),
    Sketcher.Constraint("Vertical", 30, 3, 31, 3),
    Sketcher.Constraint("Diameter", 0, 6.7),
    Sketcher.Constraint("DistanceY", 1, 3, 0, 3, 95.0),
    Sketcher.Constraint("DistanceY", 2, 3, 1, 3, 95.0),
    Sketcher.Constraint("DistanceY", 3, 3, 2, 3, 95.0),
    Sketcher.Constraint("DistanceY", 4, 3, 3, 3, 95.0),
    Sketcher.Constraint("DistanceY", 5, 3, 4, 3, 95.0),
    Sketcher.Constraint("DistanceY", 6, 3, 5, 3, 95.0),
    Sketcher.Constraint("DistanceY", 7, 3, 6, 3, 95.0),
    Sketcher.Constraint("DistanceX", 7, 3, 8, 3, 110.0),
    Sketcher.Constraint("DistanceX", 15, 3, 16, 3, 565.0),
    Sketcher.Constraint("DistanceX", 23, 3, 24, 3, 110.0),
    Sketcher.Constraint("DistanceX", 0, 3, -1, 1, 1512.548043),
    Sketcher.Constraint("DistanceY", -1, 1, 0, 3, 363.433697),
])
doc.recompute()
hole = doc.addObject("PartDesign::Hole", "Hole")
body3.addObject(hole)
hole.Profile = sketch6
hole.ThreadType = "None"
hole.Diameter = 6.7
hole.DepthType = "ThroughAll"
body4 = doc.addObject("PartDesign::Body", "Body003")

# Sketch on XY plane
sketch7 = doc.addObject("Sketcher::SketchObject", "Sketch006")
body4.addObject(sketch7)
sketch7.AttachmentSupport = (doc.getObject("XY_Plane003"), [""])
sketch7.MapMode = "FlatFace"
sketch7.addGeometry([
    Part.LineSegment(V(-1489, -1107, 0), V(-1489, -1707, 0)),
    Part.LineSegment(V(-1489, -1707, 0), V(-989, -1707, 0)),
    Part.LineSegment(V(-989, -1707, 0), V(-989, -1107, 0)),
    Part.LineSegment(V(-989, -1107, 0), V(-1489, -1107, 0)),
], False)
sketch7.addConstraint([
    Sketcher.Constraint("Coincident", 0, 2, 1, 1),
    Sketcher.Constraint("Coincident", 1, 2, 2, 1),
    Sketcher.Constraint("Coincident", 2, 2, 3, 1),
    Sketcher.Constraint("Coincident", 3, 2, 0, 1),
    Sketcher.Constraint("Vertical", 0),
    Sketcher.Constraint("Horizontal", 1),
    Sketcher.Constraint("Vertical", 2),
    Sketcher.Constraint("Horizontal", 3),
    Sketcher.Constraint("DistanceX", 1, 1, 1, 2, 500.0),
    Sketcher.Constraint("DistanceY", 0, 2, 0, 1, 600.0),
    Sketcher.Constraint("DistanceX", 0, 2, -1, 1, 1488.784909),
    Sketcher.Constraint("DistanceY", 0, 2, -1, 1, 1706.551075),
])
pad4 = doc.addObject("PartDesign::Pad", "Pad003")
body4.addObject(pad4)
pad4.Profile = sketch7
pad4.Length = 20

# Sketch on XZ plane
sketch8 = doc.addObject("Sketcher::SketchObject", "Sketch007")
body4.addObject(sketch8)
sketch8.AttachmentSupport = (doc.getObject("XZ_Plane003"), [""])
sketch8.MapMode = "FlatFace"
sketch8.AttachmentOffset = App.Placement(V(0, 0, 1706.551075), App.Rotation())
sketch8.addGeometry([
    Part.LineSegment(V(-1033.8, 13.5, 0), V(-1033.8, 20, 0)),  # 0
    Part.LineSegment(V(-1033.8, 20, 0), V(-1043.8, 20, 0)),  # 1
    Part.LineSegment(V(-1043.8, 20, 0), V(-1043.8, 13.5, 0)),  # 2
    Part.LineSegment(V(-1043.8, 13.5, 0), V(-1046.8, 13.5, 0)),  # 3
    Part.LineSegment(V(-1046.8, 13.5, 0), V(-1046.8, 5.5, 0)),  # 4
    Part.LineSegment(V(-1046.8, 5.5, 0), V(-1030.8, 5.5, 0)),  # 5
    Part.LineSegment(V(-1030.8, 5.5, 0), V(-1030.8, 13.5, 0)),  # 6
    Part.LineSegment(V(-1030.8, 13.5, 0), V(-1033.8, 13.5, 0)),  # 7
    Part.LineSegment(V(-1083.8, 13.5, 0), V(-1083.8, 20, 0)),  # 8
    Part.LineSegment(V(-1083.8, 20, 0), V(-1093.8, 20, 0)),  # 9
    Part.LineSegment(V(-1093.8, 20, 0), V(-1093.8, 13.5, 0)),  # 10
    Part.LineSegment(V(-1093.8, 13.5, 0), V(-1096.8, 13.5, 0)),  # 11
    Part.LineSegment(V(-1096.8, 13.5, 0), V(-1096.8, 5.5, 0)),  # 12
    Part.LineSegment(V(-1096.8, 5.5, 0), V(-1080.8, 5.5, 0)),  # 13
    Part.LineSegment(V(-1080.8, 5.5, 0), V(-1080.8, 13.5, 0)),  # 14
    Part.LineSegment(V(-1080.8, 13.5, 0), V(-1083.8, 13.5, 0)),  # 15
    Part.LineSegment(V(-1133.8, 13.5, 0), V(-1133.8, 20, 0)),  # 16
    Part.LineSegment(V(-1133.8, 20, 0), V(-1143.8, 20, 0)),  # 17
    Part.LineSegment(V(-1143.8, 20, 0), V(-1143.8, 13.5, 0)),  # 18
    Part.LineSegment(V(-1143.8, 13.5, 0), V(-1146.8, 13.5, 0)),  # 19
    Part.LineSegment(V(-1146.8, 13.5, 0), V(-1146.8, 5.5, 0)),  # 20
    Part.LineSegment(V(-1146.8, 5.5, 0), V(-1130.8, 5.5, 0)),  # 21
    Part.LineSegment(V(-1130.8, 5.5, 0), V(-1130.8, 13.5, 0)),  # 22
    Part.LineSegment(V(-1130.8, 13.5, 0), V(-1133.8, 13.5, 0)),  # 23
    Part.LineSegment(V(-1183.8, 20, 0), V(-1193.8, 20, 0)),  # 24
    Part.LineSegment(V(-1193.8, 20, 0), V(-1193.8, 13.5, 0)),  # 25
    Part.LineSegment(V(-1193.8, 13.5, 0), V(-1196.8, 13.5, 0)),  # 26
    Part.LineSegment(V(-1196.8, 13.5, 0), V(-1196.8, 5.5, 0)),  # 27
    Part.LineSegment(V(-1196.8, 5.5, 0), V(-1180.8, 5.5, 0)),  # 28
    Part.LineSegment(V(-1180.8, 5.5, 0), V(-1180.8, 13.5, 0)),  # 29
    Part.LineSegment(V(-1180.8, 13.5, 0), V(-1183.8, 13.5, 0)),  # 30
    Part.LineSegment(V(-1183.8, 13.5, 0), V(-1183.8, 20, 0)),  # 31
    Part.LineSegment(V(-1233.8, 20, 0), V(-1243.8, 20, 0)),  # 32
    Part.LineSegment(V(-1243.8, 20, 0), V(-1243.8, 13.5, 0)),  # 33
    Part.LineSegment(V(-1243.8, 13.5, 0), V(-1246.8, 13.5, 0)),  # 34
    Part.LineSegment(V(-1246.8, 13.5, 0), V(-1246.8, 5.5, 0)),  # 35
    Part.LineSegment(V(-1246.8, 5.5, 0), V(-1230.8, 5.5, 0)),  # 36
    Part.LineSegment(V(-1230.8, 5.5, 0), V(-1230.8, 13.5, 0)),  # 37
    Part.LineSegment(V(-1230.8, 13.5, 0), V(-1233.8, 13.5, 0)),  # 38
    Part.LineSegment(V(-1233.8, 13.5, 0), V(-1233.8, 20, 0)),  # 39
    Part.LineSegment(V(-1283.8, 20, 0), V(-1293.8, 20, 0)),  # 40
    Part.LineSegment(V(-1293.8, 20, 0), V(-1293.8, 13.5, 0)),  # 41
    Part.LineSegment(V(-1293.8, 13.5, 0), V(-1296.8, 13.5, 0)),  # 42
    Part.LineSegment(V(-1296.8, 13.5, 0), V(-1296.8, 5.5, 0)),  # 43
    Part.LineSegment(V(-1296.8, 5.5, 0), V(-1280.8, 5.5, 0)),  # 44
    Part.LineSegment(V(-1280.8, 5.5, 0), V(-1280.8, 13.5, 0)),  # 45
    Part.LineSegment(V(-1280.8, 13.5, 0), V(-1283.8, 13.5, 0)),  # 46
    Part.LineSegment(V(-1283.8, 13.5, 0), V(-1283.8, 20, 0)),  # 47
    Part.LineSegment(V(-1333.8, 20, 0), V(-1343.8, 20, 0)),  # 48
    Part.LineSegment(V(-1343.8, 20, 0), V(-1343.8, 13.5, 0)),  # 49
    Part.LineSegment(V(-1343.8, 13.5, 0), V(-1346.8, 13.5, 0)),  # 50
    Part.LineSegment(V(-1346.8, 13.5, 0), V(-1346.8, 5.5, 0)),  # 51
    Part.LineSegment(V(-1346.8, 5.5, 0), V(-1330.8, 5.5, 0)),  # 52
    Part.LineSegment(V(-1330.8, 5.5, 0), V(-1330.8, 13.5, 0)),  # 53
    Part.LineSegment(V(-1330.8, 13.5, 0), V(-1333.8, 13.5, 0)),  # 54
    Part.LineSegment(V(-1333.8, 13.5, 0), V(-1333.8, 20, 0)),  # 55
    Part.LineSegment(V(-1383.8, 20, 0), V(-1393.8, 20, 0)),  # 56
    Part.LineSegment(V(-1393.8, 20, 0), V(-1393.8, 13.5, 0)),  # 57
    Part.LineSegment(V(-1393.8, 13.5, 0), V(-1396.8, 13.5, 0)),  # 58
    Part.LineSegment(V(-1396.8, 13.5, 0), V(-1396.8, 5.5, 0)),  # 59
    Part.LineSegment(V(-1396.8, 5.5, 0), V(-1380.8, 5.5, 0)),  # 60
    Part.LineSegment(V(-1380.8, 5.5, 0), V(-1380.8, 13.5, 0)),  # 61
    Part.LineSegment(V(-1380.8, 13.5, 0), V(-1383.8, 13.5, 0)),  # 62
    Part.LineSegment(V(-1383.8, 13.5, 0), V(-1383.8, 20, 0)),  # 63
    Part.LineSegment(V(-1433.8, 20, 0), V(-1443.8, 20, 0)),  # 64
    Part.LineSegment(V(-1443.8, 20, 0), V(-1443.8, 13.5, 0)),  # 65
    Part.LineSegment(V(-1443.8, 13.5, 0), V(-1446.8, 13.5, 0)),  # 66
    Part.LineSegment(V(-1446.8, 13.5, 0), V(-1446.8, 5.5, 0)),  # 67
    Part.LineSegment(V(-1446.8, 5.5, 0), V(-1430.8, 5.5, 0)),  # 68
    Part.LineSegment(V(-1430.8, 5.5, 0), V(-1430.8, 13.5, 0)),  # 69
    Part.LineSegment(V(-1430.8, 13.5, 0), V(-1433.8, 13.5, 0)),  # 70
    Part.LineSegment(V(-1433.8, 13.5, 0), V(-1433.8, 20, 0)),  # 71
], False)
sketch8.addConstraint([
    Sketcher.Constraint("Coincident", 0, 2, 1, 1),
    Sketcher.Constraint("Coincident", 1, 2, 2, 1),
    Sketcher.Constraint("Coincident", 2, 2, 3, 1),
    Sketcher.Constraint("Coincident", 3, 2, 4, 1),
    Sketcher.Constraint("Coincident", 4, 2, 5, 1),
    Sketcher.Constraint("Coincident", 5, 2, 6, 1),
    Sketcher.Constraint("Coincident", 6, 2, 7, 1),
    Sketcher.Constraint("Coincident", 7, 2, 0, 1),
    Sketcher.Constraint("Coincident", 8, 2, 9, 1),
    Sketcher.Constraint("Coincident", 9, 2, 10, 1),
    Sketcher.Constraint("Coincident", 10, 2, 11, 1),
    Sketcher.Constraint("Coincident", 11, 2, 12, 1),
    Sketcher.Constraint("Coincident", 12, 2, 13, 1),
    Sketcher.Constraint("Coincident", 13, 2, 14, 1),
    Sketcher.Constraint("Coincident", 14, 2, 15, 1),
    Sketcher.Constraint("Coincident", 15, 2, 8, 1),
    Sketcher.Constraint("Coincident", 16, 2, 17, 1),
    Sketcher.Constraint("Coincident", 17, 2, 18, 1),
    Sketcher.Constraint("Coincident", 18, 2, 19, 1),
    Sketcher.Constraint("Coincident", 19, 2, 20, 1),
    Sketcher.Constraint("Coincident", 20, 2, 21, 1),
    Sketcher.Constraint("Coincident", 21, 2, 22, 1),
    Sketcher.Constraint("Coincident", 22, 2, 23, 1),
    Sketcher.Constraint("Coincident", 23, 2, 16, 1),
    Sketcher.Constraint("Coincident", 24, 2, 25, 1),
    Sketcher.Constraint("Coincident", 25, 2, 26, 1),
    Sketcher.Constraint("Coincident", 26, 2, 27, 1),
    Sketcher.Constraint("Coincident", 27, 2, 28, 1),
    Sketcher.Constraint("Coincident", 28, 2, 29, 1),
    Sketcher.Constraint("Coincident", 29, 2, 30, 1),
    Sketcher.Constraint("Coincident", 30, 2, 31, 1),
    Sketcher.Constraint("Coincident", 31, 2, 24, 1),
    Sketcher.Constraint("Coincident", 32, 2, 33, 1),
    Sketcher.Constraint("Coincident", 33, 2, 34, 1),
    Sketcher.Constraint("Coincident", 34, 2, 35, 1),
    Sketcher.Constraint("Coincident", 35, 2, 36, 1),
    Sketcher.Constraint("Coincident", 36, 2, 37, 1),
    Sketcher.Constraint("Coincident", 37, 2, 38, 1),
    Sketcher.Constraint("Coincident", 38, 2, 39, 1),
    Sketcher.Constraint("Coincident", 39, 2, 32, 1),
    Sketcher.Constraint("Coincident", 40, 2, 41, 1),
    Sketcher.Constraint("Coincident", 41, 2, 42, 1),
    Sketcher.Constraint("Coincident", 42, 2, 43, 1),
    Sketcher.Constraint("Coincident", 43, 2, 44, 1),
    Sketcher.Constraint("Coincident", 44, 2, 45, 1),
    Sketcher.Constraint("Coincident", 45, 2, 46, 1),
    Sketcher.Constraint("Coincident", 46, 2, 47, 1),
    Sketcher.Constraint("Coincident", 47, 2, 40, 1),
    Sketcher.Constraint("Coincident", 48, 2, 49, 1),
    Sketcher.Constraint("Coincident", 49, 2, 50, 1),
    Sketcher.Constraint("Coincident", 50, 2, 51, 1),
    Sketcher.Constraint("Coincident", 51, 2, 52, 1),
    Sketcher.Constraint("Coincident", 52, 2, 53, 1),
    Sketcher.Constraint("Coincident", 53, 2, 54, 1),
    Sketcher.Constraint("Coincident", 54, 2, 55, 1),
    Sketcher.Constraint("Coincident", 55, 2, 48, 1),
    Sketcher.Constraint("Coincident", 56, 2, 57, 1),
    Sketcher.Constraint("Coincident", 57, 2, 58, 1),
    Sketcher.Constraint("Coincident", 58, 2, 59, 1),
    Sketcher.Constraint("Coincident", 59, 2, 60, 1),
    Sketcher.Constraint("Coincident", 60, 2, 61, 1),
    Sketcher.Constraint("Coincident", 61, 2, 62, 1),
    Sketcher.Constraint("Coincident", 62, 2, 63, 1),
    Sketcher.Constraint("Coincident", 63, 2, 56, 1),
    Sketcher.Constraint("Coincident", 64, 2, 65, 1),
    Sketcher.Constraint("Coincident", 65, 2, 66, 1),
    Sketcher.Constraint("Coincident", 66, 2, 67, 1),
    Sketcher.Constraint("Coincident", 67, 2, 68, 1),
    Sketcher.Constraint("Coincident", 68, 2, 69, 1),
    Sketcher.Constraint("Coincident", 69, 2, 70, 1),
    Sketcher.Constraint("Coincident", 70, 2, 71, 1),
    Sketcher.Constraint("Coincident", 71, 2, 64, 1),
    Sketcher.Constraint("Vertical", 0),
    Sketcher.Constraint("Horizontal", 1),
    Sketcher.Constraint("Vertical", 2),
    Sketcher.Constraint("Horizontal", 3),
    Sketcher.Constraint("Vertical", 4),
    Sketcher.Constraint("Horizontal", 5),
    Sketcher.Constraint("Vertical", 6),
    Sketcher.Constraint("Horizontal", 7),
    Sketcher.Constraint("Vertical", 8),
    Sketcher.Constraint("Horizontal", 9),
    Sketcher.Constraint("Vertical", 10),
    Sketcher.Constraint("Horizontal", 11),
    Sketcher.Constraint("Vertical", 12),
    Sketcher.Constraint("Horizontal", 13),
    Sketcher.Constraint("Vertical", 14),
    Sketcher.Constraint("Horizontal", 15),
    Sketcher.Constraint("Vertical", 16),
    Sketcher.Constraint("Horizontal", 17),
    Sketcher.Constraint("Vertical", 18),
    Sketcher.Constraint("Horizontal", 19),
    Sketcher.Constraint("Vertical", 20),
    Sketcher.Constraint("Horizontal", 21),
    Sketcher.Constraint("Vertical", 22),
    Sketcher.Constraint("Horizontal", 23),
    Sketcher.Constraint("Horizontal", 24),
    Sketcher.Constraint("Vertical", 25),
    Sketcher.Constraint("Horizontal", 26),
    Sketcher.Constraint("Vertical", 27),
    Sketcher.Constraint("Horizontal", 28),
    Sketcher.Constraint("Vertical", 29),
    Sketcher.Constraint("Horizontal", 30),
    Sketcher.Constraint("Vertical", 31),
    Sketcher.Constraint("Horizontal", 32),
    Sketcher.Constraint("Vertical", 33),
    Sketcher.Constraint("Horizontal", 34),
    Sketcher.Constraint("Vertical", 35),
    Sketcher.Constraint("Horizontal", 36),
    Sketcher.Constraint("Vertical", 37),
    Sketcher.Constraint("Horizontal", 38),
    Sketcher.Constraint("Vertical", 39),
    Sketcher.Constraint("Horizontal", 40),
    Sketcher.Constraint("Vertical", 41),
    Sketcher.Constraint("Horizontal", 42),
    Sketcher.Constraint("Vertical", 43),
    Sketcher.Constraint("Horizontal", 44),
    Sketcher.Constraint("Vertical", 45),
    Sketcher.Constraint("Horizontal", 46),
    Sketcher.Constraint("Vertical", 47),
    Sketcher.Constraint("Horizontal", 48),
    Sketcher.Constraint("Vertical", 49),
    Sketcher.Constraint("Horizontal", 50),
    Sketcher.Constraint("Vertical", 51),
    Sketcher.Constraint("Horizontal", 52),
    Sketcher.Constraint("Vertical", 53),
    Sketcher.Constraint("Horizontal", 54),
    Sketcher.Constraint("Vertical", 55),
    Sketcher.Constraint("Horizontal", 56),
    Sketcher.Constraint("Vertical", 57),
    Sketcher.Constraint("Horizontal", 58),
    Sketcher.Constraint("Vertical", 59),
    Sketcher.Constraint("Horizontal", 60),
    Sketcher.Constraint("Vertical", 61),
    Sketcher.Constraint("Horizontal", 62),
    Sketcher.Constraint("Vertical", 63),
    Sketcher.Constraint("Horizontal", 64),
    Sketcher.Constraint("Vertical", 65),
    Sketcher.Constraint("Horizontal", 66),
    Sketcher.Constraint("Vertical", 67),
    Sketcher.Constraint("Horizontal", 68),
    Sketcher.Constraint("Vertical", 69),
    Sketcher.Constraint("Horizontal", 70),
    Sketcher.Constraint("Vertical", 71),
    Sketcher.Constraint("Horizontal", 3, 2, 6, 2),
    Sketcher.Constraint("Horizontal", 1, 2, 8, 2),
    Sketcher.Constraint("Horizontal", 7, 2, 10, 2),
    Sketcher.Constraint("Horizontal", 5, 2, 12, 2),
    Sketcher.Constraint("Horizontal", 11, 2, 14, 2),
    Sketcher.Constraint("Horizontal", 9, 2, 16, 2),
    Sketcher.Constraint("Horizontal", 15, 2, 18, 2),
    Sketcher.Constraint("Horizontal", 13, 2, 20, 2),
    Sketcher.Constraint("Horizontal", 19, 2, 22, 2),
    Sketcher.Constraint("Horizontal", 17, 2, 24, 2),
    Sketcher.Constraint("Horizontal", 23, 2, 25, 2),
    Sketcher.Constraint("Horizontal", 21, 2, 27, 2),
    Sketcher.Constraint("Horizontal", 26, 2, 29, 2),
    Sketcher.Constraint("Horizontal", 31, 2, 32, 2),
    Sketcher.Constraint("Horizontal", 30, 2, 33, 2),
    Sketcher.Constraint("Horizontal", 28, 2, 35, 2),
    Sketcher.Constraint("Horizontal", 34, 2, 37, 2),
    Sketcher.Constraint("Horizontal", 39, 2, 40, 2),
    Sketcher.Constraint("Horizontal", 38, 2, 41, 2),
    Sketcher.Constraint("Horizontal", 36, 2, 43, 2),
    Sketcher.Constraint("Horizontal", 42, 2, 45, 2),
    Sketcher.Constraint("Horizontal", 47, 2, 48, 2),
    Sketcher.Constraint("Horizontal", 46, 2, 49, 2),
    Sketcher.Constraint("Horizontal", 44, 2, 51, 2),
    Sketcher.Constraint("Horizontal", 50, 2, 53, 2),
    Sketcher.Constraint("Horizontal", 55, 2, 56, 2),
    Sketcher.Constraint("Horizontal", 54, 2, 57, 2),
    Sketcher.Constraint("Horizontal", 52, 2, 59, 2),
    Sketcher.Constraint("Horizontal", 58, 2, 61, 2),
    Sketcher.Constraint("Horizontal", 63, 2, 64, 2),
    Sketcher.Constraint("Horizontal", 62, 2, 65, 2),
    Sketcher.Constraint("Horizontal", 60, 2, 67, 2),
    Sketcher.Constraint("Horizontal", 66, 2, 69, 2),
    Sketcher.Constraint("Equal", 3, 7),
    Sketcher.Constraint("Equal", 1, 9),
    Sketcher.Constraint("Equal", 7, 11),
    Sketcher.Constraint("Equal", 5, 13),
    Sketcher.Constraint("Equal", 9, 17),
    Sketcher.Constraint("Equal", 15, 19),
    Sketcher.Constraint("Equal", 13, 21),
    Sketcher.Constraint("Equal", 17, 24),
    Sketcher.Constraint("Equal", 23, 26),
    Sketcher.Constraint("Equal", 21, 28),
    Sketcher.Constraint("Equal", 24, 32),
    Sketcher.Constraint("Equal", 30, 34),
    Sketcher.Constraint("Equal", 28, 36),
    Sketcher.Constraint("Equal", 32, 40),
    Sketcher.Constraint("Equal", 38, 42),
    Sketcher.Constraint("Equal", 36, 44),
    Sketcher.Constraint("Equal", 40, 48),
    Sketcher.Constraint("Equal", 46, 50),
    Sketcher.Constraint("Equal", 44, 52),
    Sketcher.Constraint("Equal", 48, 56),
    Sketcher.Constraint("Equal", 54, 58),
    Sketcher.Constraint("Equal", 52, 60),
    Sketcher.Constraint("Equal", 56, 64),
    Sketcher.Constraint("Equal", 62, 66),
    Sketcher.Constraint("Equal", 60, 68),
    Sketcher.Constraint("DistanceX", 1, 2, 1, 1, 10.0),
    Sketcher.Constraint("DistanceX", 3, 2, 3, 1, 3.0),
    Sketcher.Constraint("DistanceY", 4, 2, 4, 1, 8.0),
    Sketcher.Constraint("DistanceY", 0, 1, 0, 2, 6.5),
    Sketcher.Constraint("DistanceY", -1, 1, 0, 2, 20.0),
    Sketcher.Constraint("DistanceX", 0, 2, -1, 1, 1033.784909),
    Sketcher.Constraint("DistanceX", 8, 2, -1, 1, 1083.784909),
    Sketcher.Constraint("DistanceX", 16, 2, -1, 1, 1133.784909),
    Sketcher.Constraint("DistanceX", 24, 2, -1, 1, 1193.784909),
    Sketcher.Constraint("DistanceX", 32, 2, -1, 1, 1243.784909),
    Sketcher.Constraint("DistanceX", 40, 2, -1, 1, 1293.784909),
    Sketcher.Constraint("DistanceX", 48, 2, -1, 1, 1343.784909),
    Sketcher.Constraint("DistanceX", 56, 2, -1, 1, 1393.784909),
    Sketcher.Constraint("DistanceX", 64, 2, -1, 1, 1443.784909),
])
pocket3 = doc.addObject("PartDesign::Pocket", "Pocket002")
body4.addObject(pocket3)
pocket3.Profile = sketch8
pocket3.Length = 600

doc.recompute()
